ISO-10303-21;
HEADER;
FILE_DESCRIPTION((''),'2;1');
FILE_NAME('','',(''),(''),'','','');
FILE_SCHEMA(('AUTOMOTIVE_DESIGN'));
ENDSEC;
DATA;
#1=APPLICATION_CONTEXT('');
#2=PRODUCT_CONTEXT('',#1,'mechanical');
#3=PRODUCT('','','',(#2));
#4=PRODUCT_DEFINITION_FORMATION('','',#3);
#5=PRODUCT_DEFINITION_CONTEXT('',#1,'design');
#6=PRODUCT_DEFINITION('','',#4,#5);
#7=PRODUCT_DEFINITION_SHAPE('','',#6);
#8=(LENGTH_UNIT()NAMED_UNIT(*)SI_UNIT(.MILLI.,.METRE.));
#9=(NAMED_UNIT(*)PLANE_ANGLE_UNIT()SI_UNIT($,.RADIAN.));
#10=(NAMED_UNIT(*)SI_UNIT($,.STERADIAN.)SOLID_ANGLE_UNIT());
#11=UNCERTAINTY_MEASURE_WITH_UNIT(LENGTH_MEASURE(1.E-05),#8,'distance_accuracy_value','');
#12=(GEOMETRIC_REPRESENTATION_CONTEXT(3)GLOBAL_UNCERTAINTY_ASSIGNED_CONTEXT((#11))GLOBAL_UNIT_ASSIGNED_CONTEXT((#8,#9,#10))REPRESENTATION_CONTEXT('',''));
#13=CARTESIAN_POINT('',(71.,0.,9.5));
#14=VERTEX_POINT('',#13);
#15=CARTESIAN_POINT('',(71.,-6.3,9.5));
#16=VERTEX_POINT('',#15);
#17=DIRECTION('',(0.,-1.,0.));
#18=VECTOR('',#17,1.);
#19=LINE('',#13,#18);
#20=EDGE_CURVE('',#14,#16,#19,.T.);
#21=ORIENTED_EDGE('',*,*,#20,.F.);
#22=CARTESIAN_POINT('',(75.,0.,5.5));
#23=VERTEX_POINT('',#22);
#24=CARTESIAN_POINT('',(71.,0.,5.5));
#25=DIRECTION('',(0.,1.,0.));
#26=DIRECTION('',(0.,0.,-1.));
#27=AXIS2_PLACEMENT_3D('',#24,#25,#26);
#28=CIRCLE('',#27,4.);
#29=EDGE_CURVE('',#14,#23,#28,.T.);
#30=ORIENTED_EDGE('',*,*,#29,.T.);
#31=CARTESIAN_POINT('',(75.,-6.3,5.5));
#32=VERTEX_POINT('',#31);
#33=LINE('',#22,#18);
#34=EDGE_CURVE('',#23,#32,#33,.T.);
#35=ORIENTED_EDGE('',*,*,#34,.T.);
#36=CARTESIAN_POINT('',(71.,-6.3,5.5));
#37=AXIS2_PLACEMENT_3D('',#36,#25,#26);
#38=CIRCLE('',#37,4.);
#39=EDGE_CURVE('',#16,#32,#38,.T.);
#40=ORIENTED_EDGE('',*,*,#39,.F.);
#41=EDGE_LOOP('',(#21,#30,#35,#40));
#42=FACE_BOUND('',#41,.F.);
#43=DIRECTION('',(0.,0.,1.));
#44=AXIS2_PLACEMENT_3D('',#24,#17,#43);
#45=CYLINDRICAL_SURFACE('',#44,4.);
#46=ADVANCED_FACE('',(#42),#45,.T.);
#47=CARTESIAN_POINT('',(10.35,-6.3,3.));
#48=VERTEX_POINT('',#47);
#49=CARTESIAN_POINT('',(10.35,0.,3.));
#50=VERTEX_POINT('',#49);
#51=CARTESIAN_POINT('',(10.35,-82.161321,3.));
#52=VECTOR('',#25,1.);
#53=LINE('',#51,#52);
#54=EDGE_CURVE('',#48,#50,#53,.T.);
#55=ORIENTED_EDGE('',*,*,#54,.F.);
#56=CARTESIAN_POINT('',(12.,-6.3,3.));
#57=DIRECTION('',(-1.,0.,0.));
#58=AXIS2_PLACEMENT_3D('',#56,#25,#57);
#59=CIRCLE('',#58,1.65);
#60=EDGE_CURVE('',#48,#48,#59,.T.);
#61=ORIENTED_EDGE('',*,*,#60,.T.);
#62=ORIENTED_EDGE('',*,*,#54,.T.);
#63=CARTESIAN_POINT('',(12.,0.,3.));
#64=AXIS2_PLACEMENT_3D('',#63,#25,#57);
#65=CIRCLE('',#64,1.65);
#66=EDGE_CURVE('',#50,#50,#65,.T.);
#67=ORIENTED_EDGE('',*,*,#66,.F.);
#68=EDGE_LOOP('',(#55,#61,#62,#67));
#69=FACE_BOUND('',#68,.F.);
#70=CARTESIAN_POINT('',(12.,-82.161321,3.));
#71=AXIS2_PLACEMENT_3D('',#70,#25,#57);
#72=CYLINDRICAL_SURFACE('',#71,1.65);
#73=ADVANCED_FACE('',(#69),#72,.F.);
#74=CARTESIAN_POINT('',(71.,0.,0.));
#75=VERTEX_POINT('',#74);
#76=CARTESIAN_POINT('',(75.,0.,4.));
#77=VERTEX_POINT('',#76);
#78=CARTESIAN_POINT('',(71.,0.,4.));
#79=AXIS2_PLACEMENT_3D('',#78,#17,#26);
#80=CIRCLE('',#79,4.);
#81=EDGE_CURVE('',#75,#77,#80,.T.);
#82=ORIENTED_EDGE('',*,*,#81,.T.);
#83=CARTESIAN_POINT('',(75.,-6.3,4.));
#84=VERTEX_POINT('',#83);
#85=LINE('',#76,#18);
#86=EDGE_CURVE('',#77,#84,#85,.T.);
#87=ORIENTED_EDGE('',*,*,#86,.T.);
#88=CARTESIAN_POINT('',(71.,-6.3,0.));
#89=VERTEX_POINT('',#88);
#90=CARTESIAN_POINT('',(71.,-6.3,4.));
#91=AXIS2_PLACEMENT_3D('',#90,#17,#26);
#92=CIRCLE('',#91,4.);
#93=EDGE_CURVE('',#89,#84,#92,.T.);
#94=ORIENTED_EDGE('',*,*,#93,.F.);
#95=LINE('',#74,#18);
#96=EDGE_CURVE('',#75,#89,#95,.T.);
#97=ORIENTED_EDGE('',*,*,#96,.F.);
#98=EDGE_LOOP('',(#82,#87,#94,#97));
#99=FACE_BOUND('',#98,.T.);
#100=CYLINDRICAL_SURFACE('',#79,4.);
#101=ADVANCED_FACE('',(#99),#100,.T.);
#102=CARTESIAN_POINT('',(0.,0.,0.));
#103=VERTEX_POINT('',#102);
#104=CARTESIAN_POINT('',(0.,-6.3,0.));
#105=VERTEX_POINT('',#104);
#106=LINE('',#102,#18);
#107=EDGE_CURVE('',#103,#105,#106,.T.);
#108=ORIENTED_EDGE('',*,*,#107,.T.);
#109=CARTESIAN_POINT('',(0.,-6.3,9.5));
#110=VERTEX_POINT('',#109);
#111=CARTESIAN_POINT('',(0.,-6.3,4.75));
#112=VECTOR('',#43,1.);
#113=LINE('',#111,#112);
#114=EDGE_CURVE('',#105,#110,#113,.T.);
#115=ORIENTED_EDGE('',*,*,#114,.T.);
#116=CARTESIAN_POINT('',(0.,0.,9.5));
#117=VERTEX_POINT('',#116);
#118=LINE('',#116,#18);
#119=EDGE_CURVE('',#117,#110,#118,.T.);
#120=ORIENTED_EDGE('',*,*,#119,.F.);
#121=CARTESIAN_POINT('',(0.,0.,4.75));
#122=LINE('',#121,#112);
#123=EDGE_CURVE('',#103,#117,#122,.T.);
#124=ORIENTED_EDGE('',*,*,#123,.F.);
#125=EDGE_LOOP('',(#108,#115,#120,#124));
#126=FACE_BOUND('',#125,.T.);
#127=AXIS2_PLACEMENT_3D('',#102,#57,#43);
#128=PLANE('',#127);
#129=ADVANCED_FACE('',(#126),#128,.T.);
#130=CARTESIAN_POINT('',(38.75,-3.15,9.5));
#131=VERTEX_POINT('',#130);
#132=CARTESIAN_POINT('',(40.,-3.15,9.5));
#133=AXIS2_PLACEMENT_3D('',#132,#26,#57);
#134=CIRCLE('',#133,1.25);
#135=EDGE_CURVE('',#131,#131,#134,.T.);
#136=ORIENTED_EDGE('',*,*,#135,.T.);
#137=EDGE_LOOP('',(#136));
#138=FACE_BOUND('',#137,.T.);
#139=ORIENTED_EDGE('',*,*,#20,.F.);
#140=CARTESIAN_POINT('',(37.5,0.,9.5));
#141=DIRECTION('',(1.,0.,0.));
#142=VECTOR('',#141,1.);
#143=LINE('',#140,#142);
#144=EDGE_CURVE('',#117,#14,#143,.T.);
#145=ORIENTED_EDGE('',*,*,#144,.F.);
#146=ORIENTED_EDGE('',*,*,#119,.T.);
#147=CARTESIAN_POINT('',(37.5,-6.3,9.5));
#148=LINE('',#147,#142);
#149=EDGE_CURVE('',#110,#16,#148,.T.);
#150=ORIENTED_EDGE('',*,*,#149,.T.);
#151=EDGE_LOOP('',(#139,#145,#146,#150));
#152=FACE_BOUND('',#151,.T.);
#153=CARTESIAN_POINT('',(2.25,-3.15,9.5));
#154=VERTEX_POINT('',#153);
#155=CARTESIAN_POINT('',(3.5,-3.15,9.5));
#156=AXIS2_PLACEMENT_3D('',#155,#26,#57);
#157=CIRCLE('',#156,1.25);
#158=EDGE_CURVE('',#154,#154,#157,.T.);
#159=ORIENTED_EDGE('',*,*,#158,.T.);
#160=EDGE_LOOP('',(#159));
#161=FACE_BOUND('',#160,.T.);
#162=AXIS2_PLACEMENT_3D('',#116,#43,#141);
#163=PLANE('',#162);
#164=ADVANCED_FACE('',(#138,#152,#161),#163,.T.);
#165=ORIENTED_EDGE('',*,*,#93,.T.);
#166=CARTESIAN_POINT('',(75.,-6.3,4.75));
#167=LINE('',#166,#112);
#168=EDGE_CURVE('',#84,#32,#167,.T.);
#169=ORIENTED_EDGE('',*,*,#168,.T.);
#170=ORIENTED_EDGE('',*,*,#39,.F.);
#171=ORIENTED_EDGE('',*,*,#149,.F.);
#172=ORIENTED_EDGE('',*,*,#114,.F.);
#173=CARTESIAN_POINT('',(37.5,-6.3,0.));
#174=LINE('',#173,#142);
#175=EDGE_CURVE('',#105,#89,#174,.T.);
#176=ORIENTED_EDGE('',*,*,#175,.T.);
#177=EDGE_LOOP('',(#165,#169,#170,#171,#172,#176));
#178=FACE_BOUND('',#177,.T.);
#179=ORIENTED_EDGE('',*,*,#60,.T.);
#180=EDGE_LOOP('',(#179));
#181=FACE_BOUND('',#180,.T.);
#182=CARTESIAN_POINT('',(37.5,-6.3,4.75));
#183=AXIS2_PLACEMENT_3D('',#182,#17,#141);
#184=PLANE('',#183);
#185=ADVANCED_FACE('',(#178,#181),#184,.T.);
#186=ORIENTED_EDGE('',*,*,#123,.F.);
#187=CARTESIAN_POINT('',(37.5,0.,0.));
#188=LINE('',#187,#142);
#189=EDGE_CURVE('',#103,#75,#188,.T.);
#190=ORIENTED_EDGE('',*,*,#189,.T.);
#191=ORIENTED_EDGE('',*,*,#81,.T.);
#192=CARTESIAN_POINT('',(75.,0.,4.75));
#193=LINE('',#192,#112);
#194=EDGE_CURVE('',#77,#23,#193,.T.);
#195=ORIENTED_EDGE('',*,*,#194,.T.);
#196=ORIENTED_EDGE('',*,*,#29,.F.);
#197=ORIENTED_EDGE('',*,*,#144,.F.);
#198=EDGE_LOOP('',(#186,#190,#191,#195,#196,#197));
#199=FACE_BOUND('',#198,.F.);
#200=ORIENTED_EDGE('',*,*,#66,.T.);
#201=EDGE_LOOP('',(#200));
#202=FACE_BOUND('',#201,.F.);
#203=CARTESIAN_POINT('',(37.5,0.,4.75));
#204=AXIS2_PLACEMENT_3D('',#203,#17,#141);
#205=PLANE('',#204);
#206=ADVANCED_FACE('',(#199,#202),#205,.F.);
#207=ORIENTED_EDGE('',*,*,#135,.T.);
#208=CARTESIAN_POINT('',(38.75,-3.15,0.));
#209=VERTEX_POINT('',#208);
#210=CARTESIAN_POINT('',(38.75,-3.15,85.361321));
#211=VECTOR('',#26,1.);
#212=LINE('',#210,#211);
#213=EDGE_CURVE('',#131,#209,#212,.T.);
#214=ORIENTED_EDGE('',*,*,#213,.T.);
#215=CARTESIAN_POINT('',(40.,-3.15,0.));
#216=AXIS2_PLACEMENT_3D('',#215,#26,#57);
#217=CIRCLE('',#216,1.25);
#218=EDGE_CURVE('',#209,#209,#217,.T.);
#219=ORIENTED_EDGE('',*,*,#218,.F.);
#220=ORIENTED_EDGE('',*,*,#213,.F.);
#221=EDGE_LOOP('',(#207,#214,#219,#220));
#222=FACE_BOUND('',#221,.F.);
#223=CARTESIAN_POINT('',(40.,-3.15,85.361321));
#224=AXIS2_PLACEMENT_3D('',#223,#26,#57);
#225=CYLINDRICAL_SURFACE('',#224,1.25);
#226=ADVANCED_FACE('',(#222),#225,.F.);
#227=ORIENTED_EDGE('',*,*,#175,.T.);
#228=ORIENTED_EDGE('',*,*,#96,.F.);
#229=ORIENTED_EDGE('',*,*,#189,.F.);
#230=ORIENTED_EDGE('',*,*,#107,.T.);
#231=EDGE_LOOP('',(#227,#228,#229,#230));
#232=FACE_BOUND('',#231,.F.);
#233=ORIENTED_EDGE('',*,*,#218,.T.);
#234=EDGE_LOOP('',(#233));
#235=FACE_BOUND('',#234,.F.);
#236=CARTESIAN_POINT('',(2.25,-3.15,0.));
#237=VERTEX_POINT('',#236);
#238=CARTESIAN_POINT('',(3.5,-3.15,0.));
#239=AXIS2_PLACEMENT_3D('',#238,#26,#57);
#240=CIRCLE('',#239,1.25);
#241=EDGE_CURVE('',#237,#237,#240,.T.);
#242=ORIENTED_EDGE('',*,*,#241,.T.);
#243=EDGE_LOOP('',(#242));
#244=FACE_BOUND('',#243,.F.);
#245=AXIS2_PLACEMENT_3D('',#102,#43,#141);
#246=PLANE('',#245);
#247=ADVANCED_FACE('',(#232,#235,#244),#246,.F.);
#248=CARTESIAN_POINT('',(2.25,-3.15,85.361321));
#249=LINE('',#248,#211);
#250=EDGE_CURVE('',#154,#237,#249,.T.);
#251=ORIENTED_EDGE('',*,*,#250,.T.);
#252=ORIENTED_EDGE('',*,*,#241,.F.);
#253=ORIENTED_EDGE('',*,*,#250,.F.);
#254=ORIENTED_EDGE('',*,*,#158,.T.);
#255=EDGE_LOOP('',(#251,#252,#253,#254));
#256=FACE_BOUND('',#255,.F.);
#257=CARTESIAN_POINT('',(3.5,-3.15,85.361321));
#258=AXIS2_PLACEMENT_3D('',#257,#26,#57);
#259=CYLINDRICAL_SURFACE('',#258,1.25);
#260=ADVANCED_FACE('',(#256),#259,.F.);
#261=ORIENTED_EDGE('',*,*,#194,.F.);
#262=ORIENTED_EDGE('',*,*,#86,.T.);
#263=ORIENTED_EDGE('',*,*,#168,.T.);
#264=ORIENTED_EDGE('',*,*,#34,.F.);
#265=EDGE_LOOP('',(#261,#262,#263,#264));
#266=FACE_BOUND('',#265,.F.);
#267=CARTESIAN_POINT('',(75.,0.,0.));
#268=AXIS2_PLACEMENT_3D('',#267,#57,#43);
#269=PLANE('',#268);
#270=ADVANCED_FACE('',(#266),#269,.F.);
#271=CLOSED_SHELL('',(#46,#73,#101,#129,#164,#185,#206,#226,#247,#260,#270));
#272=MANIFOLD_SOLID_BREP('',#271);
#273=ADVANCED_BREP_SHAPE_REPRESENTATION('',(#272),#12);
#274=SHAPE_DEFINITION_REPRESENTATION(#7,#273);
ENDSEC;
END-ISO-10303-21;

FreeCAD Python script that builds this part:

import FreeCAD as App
import Part
import Sketcher


def edges_at(feature, points):
    """Names of the edges that pass closest to the given points."""
    edges = feature.Shape.Edges
    near = lambda p: min(range(len(edges)), key=lambda i: edges[i].distToShape(Part.Vertex(*p))[0])
    return sorted({f"Edge{near(p) + 1}" for p in points})

doc = App.newDocument("Part")
body = doc.addObject("PartDesign::Body", "Body")

sketch1 = body.newObject("Sketcher::SketchObject", "Sketch")
sketch1.AttachmentSupport = (doc.getObject("XZ_Plane"), [""])
sketch1.MapMode = "FlatFace"
sketch1.addGeometry(Part.LineSegment(App.Vector(0, 10, 0), App.Vector(0, 0, 0)), False)
sketch1.addGeometry(Part.LineSegment(App.Vector(0, 0, 0), App.Vector(75, 0, 0)), False)
sketch1.addGeometry(Part.LineSegment(App.Vector(75, 0, 0), App.Vector(75, 10, 0)), False)
sketch1.addGeometry(Part.LineSegment(App.Vector(75, 10, 0), App.Vector(0, 10, 0)), False)
sketch1.addConstraint(Sketcher.Constraint("Coincident", 0, 2, 1, 1))
sketch1.addConstraint(Sketcher.Constraint("Coincident", 1, 2, 2, 1))
sketch1.addConstraint(Sketcher.Constraint("Coincident", 2, 2, 3, 1))
sketch1.addConstraint(Sketcher.Constraint("Coincident", 3, 2, 0, 1))
sketch1.addConstraint(Sketcher.Constraint("Vertical", 0))
sketch1.addConstraint(Sketcher.Constraint("Horizontal", 1))
sketch1.addConstraint(Sketcher.Constraint("Vertical", 2))
sketch1.addConstraint(Sketcher.Constraint("Horizontal", 3))
sketch1.addConstraint(Sketcher.Constraint("Coincident", 0, 2, -1, 1))
sketch1.addConstraint(Sketcher.Constraint("DistanceX", 1, 1, 1, 2, 75.0))
sketch1.addConstraint(Sketcher.Constraint("DistanceY", 0, 2, 0, 1, 9.5))
pad1 = body.newObject("PartDesign::Pad", "Pad")
pad1.Profile = sketch1
pad1.Length = 6.3

sketch2 = body.newObject("Sketcher::SketchObject", "Sketch001")
sketch2.AttachmentSupport = (doc.getObject("XY_Plane"), [""])
sketch2.MapMode = "FlatFace"
sketch2.AttachmentOffset = App.Placement(App.Vector(0, 0, 9.5), App.Rotation())
sketch2.addGeometry(Part.Circle(App.Vector(3.5, -3.1, 0), App.Vector(0, 0, 1), 1.2), False)
sketch2.addGeometry(Part.Circle(App.Vector(40, -3.1, 0), App.Vector(0, 0, 1), 1.2), False)
sketch2.addConstraint(Sketcher.Constraint("Equal", 0, 1))
sketch2.addConstraint(Sketcher.Constraint("Horizontal", 0, 3, 1, 3))
sketch2.addConstraint(Sketcher.Constraint("Diameter", 0, 2.5))
sketch2.addConstraint(Sketcher.Constraint("DistanceX", -1, 1, 1, 3, 40.0))
sketch2.addConstraint(Sketcher.Constraint("DistanceX", -1, 1, 0, 3, 3.5))
sketch2.addConstraint(Sketcher.Constraint("DistanceY", 0, 3, -1, 1, 3.15))
doc.recompute()
hole = body.newObject("PartDesign::Hole", "Hole")
hole.Profile = sketch2
hole.ThreadType = "None"
hole.Diameter = 2.5
hole.DepthType = "ThroughAll"

sketch3 = body.newObject("Sketcher::SketchObject", "Sketch002")
sketch3.AttachmentSupport = (doc.getObject("XZ_Plane"), [""])
sketch3.MapMode = "FlatFace"
sketch3.AttachmentOffset = App.Placement(App.Vector(0, 0, 6.3), App.Rotation())
sketch3.addGeometry(Part.Circle(App.Vector(12, 3, 0), App.Vector(0, 0, 1), 1.6), False)
sketch3.addConstraint(Sketcher.Constraint("Diameter", 0, 3.3))
sketch3.addConstraint(Sketcher.Constraint("DistanceX", -1, 1, 0, 3, 12.0))
sketch3.addConstraint(Sketcher.Constraint("DistanceY", -1, 1, 0, 3, 3.0))
doc.recompute()
hole2 = body.newObject("PartDesign::Hole", "Hole001")
hole2.Profile = sketch3
hole2.ThreadType = "None"
hole2.Diameter = 3.3
hole2.DepthType = "ThroughAll"
doc.recompute()

fillet = body.newObject("PartDesign::Fillet", "Fillet")
fillet.Base = (hole2, edges_at(hole2, [(75, -3.15, 9.5), (75, -3.15, 0)]))
fillet.Radius = 4

doc.recompute()
